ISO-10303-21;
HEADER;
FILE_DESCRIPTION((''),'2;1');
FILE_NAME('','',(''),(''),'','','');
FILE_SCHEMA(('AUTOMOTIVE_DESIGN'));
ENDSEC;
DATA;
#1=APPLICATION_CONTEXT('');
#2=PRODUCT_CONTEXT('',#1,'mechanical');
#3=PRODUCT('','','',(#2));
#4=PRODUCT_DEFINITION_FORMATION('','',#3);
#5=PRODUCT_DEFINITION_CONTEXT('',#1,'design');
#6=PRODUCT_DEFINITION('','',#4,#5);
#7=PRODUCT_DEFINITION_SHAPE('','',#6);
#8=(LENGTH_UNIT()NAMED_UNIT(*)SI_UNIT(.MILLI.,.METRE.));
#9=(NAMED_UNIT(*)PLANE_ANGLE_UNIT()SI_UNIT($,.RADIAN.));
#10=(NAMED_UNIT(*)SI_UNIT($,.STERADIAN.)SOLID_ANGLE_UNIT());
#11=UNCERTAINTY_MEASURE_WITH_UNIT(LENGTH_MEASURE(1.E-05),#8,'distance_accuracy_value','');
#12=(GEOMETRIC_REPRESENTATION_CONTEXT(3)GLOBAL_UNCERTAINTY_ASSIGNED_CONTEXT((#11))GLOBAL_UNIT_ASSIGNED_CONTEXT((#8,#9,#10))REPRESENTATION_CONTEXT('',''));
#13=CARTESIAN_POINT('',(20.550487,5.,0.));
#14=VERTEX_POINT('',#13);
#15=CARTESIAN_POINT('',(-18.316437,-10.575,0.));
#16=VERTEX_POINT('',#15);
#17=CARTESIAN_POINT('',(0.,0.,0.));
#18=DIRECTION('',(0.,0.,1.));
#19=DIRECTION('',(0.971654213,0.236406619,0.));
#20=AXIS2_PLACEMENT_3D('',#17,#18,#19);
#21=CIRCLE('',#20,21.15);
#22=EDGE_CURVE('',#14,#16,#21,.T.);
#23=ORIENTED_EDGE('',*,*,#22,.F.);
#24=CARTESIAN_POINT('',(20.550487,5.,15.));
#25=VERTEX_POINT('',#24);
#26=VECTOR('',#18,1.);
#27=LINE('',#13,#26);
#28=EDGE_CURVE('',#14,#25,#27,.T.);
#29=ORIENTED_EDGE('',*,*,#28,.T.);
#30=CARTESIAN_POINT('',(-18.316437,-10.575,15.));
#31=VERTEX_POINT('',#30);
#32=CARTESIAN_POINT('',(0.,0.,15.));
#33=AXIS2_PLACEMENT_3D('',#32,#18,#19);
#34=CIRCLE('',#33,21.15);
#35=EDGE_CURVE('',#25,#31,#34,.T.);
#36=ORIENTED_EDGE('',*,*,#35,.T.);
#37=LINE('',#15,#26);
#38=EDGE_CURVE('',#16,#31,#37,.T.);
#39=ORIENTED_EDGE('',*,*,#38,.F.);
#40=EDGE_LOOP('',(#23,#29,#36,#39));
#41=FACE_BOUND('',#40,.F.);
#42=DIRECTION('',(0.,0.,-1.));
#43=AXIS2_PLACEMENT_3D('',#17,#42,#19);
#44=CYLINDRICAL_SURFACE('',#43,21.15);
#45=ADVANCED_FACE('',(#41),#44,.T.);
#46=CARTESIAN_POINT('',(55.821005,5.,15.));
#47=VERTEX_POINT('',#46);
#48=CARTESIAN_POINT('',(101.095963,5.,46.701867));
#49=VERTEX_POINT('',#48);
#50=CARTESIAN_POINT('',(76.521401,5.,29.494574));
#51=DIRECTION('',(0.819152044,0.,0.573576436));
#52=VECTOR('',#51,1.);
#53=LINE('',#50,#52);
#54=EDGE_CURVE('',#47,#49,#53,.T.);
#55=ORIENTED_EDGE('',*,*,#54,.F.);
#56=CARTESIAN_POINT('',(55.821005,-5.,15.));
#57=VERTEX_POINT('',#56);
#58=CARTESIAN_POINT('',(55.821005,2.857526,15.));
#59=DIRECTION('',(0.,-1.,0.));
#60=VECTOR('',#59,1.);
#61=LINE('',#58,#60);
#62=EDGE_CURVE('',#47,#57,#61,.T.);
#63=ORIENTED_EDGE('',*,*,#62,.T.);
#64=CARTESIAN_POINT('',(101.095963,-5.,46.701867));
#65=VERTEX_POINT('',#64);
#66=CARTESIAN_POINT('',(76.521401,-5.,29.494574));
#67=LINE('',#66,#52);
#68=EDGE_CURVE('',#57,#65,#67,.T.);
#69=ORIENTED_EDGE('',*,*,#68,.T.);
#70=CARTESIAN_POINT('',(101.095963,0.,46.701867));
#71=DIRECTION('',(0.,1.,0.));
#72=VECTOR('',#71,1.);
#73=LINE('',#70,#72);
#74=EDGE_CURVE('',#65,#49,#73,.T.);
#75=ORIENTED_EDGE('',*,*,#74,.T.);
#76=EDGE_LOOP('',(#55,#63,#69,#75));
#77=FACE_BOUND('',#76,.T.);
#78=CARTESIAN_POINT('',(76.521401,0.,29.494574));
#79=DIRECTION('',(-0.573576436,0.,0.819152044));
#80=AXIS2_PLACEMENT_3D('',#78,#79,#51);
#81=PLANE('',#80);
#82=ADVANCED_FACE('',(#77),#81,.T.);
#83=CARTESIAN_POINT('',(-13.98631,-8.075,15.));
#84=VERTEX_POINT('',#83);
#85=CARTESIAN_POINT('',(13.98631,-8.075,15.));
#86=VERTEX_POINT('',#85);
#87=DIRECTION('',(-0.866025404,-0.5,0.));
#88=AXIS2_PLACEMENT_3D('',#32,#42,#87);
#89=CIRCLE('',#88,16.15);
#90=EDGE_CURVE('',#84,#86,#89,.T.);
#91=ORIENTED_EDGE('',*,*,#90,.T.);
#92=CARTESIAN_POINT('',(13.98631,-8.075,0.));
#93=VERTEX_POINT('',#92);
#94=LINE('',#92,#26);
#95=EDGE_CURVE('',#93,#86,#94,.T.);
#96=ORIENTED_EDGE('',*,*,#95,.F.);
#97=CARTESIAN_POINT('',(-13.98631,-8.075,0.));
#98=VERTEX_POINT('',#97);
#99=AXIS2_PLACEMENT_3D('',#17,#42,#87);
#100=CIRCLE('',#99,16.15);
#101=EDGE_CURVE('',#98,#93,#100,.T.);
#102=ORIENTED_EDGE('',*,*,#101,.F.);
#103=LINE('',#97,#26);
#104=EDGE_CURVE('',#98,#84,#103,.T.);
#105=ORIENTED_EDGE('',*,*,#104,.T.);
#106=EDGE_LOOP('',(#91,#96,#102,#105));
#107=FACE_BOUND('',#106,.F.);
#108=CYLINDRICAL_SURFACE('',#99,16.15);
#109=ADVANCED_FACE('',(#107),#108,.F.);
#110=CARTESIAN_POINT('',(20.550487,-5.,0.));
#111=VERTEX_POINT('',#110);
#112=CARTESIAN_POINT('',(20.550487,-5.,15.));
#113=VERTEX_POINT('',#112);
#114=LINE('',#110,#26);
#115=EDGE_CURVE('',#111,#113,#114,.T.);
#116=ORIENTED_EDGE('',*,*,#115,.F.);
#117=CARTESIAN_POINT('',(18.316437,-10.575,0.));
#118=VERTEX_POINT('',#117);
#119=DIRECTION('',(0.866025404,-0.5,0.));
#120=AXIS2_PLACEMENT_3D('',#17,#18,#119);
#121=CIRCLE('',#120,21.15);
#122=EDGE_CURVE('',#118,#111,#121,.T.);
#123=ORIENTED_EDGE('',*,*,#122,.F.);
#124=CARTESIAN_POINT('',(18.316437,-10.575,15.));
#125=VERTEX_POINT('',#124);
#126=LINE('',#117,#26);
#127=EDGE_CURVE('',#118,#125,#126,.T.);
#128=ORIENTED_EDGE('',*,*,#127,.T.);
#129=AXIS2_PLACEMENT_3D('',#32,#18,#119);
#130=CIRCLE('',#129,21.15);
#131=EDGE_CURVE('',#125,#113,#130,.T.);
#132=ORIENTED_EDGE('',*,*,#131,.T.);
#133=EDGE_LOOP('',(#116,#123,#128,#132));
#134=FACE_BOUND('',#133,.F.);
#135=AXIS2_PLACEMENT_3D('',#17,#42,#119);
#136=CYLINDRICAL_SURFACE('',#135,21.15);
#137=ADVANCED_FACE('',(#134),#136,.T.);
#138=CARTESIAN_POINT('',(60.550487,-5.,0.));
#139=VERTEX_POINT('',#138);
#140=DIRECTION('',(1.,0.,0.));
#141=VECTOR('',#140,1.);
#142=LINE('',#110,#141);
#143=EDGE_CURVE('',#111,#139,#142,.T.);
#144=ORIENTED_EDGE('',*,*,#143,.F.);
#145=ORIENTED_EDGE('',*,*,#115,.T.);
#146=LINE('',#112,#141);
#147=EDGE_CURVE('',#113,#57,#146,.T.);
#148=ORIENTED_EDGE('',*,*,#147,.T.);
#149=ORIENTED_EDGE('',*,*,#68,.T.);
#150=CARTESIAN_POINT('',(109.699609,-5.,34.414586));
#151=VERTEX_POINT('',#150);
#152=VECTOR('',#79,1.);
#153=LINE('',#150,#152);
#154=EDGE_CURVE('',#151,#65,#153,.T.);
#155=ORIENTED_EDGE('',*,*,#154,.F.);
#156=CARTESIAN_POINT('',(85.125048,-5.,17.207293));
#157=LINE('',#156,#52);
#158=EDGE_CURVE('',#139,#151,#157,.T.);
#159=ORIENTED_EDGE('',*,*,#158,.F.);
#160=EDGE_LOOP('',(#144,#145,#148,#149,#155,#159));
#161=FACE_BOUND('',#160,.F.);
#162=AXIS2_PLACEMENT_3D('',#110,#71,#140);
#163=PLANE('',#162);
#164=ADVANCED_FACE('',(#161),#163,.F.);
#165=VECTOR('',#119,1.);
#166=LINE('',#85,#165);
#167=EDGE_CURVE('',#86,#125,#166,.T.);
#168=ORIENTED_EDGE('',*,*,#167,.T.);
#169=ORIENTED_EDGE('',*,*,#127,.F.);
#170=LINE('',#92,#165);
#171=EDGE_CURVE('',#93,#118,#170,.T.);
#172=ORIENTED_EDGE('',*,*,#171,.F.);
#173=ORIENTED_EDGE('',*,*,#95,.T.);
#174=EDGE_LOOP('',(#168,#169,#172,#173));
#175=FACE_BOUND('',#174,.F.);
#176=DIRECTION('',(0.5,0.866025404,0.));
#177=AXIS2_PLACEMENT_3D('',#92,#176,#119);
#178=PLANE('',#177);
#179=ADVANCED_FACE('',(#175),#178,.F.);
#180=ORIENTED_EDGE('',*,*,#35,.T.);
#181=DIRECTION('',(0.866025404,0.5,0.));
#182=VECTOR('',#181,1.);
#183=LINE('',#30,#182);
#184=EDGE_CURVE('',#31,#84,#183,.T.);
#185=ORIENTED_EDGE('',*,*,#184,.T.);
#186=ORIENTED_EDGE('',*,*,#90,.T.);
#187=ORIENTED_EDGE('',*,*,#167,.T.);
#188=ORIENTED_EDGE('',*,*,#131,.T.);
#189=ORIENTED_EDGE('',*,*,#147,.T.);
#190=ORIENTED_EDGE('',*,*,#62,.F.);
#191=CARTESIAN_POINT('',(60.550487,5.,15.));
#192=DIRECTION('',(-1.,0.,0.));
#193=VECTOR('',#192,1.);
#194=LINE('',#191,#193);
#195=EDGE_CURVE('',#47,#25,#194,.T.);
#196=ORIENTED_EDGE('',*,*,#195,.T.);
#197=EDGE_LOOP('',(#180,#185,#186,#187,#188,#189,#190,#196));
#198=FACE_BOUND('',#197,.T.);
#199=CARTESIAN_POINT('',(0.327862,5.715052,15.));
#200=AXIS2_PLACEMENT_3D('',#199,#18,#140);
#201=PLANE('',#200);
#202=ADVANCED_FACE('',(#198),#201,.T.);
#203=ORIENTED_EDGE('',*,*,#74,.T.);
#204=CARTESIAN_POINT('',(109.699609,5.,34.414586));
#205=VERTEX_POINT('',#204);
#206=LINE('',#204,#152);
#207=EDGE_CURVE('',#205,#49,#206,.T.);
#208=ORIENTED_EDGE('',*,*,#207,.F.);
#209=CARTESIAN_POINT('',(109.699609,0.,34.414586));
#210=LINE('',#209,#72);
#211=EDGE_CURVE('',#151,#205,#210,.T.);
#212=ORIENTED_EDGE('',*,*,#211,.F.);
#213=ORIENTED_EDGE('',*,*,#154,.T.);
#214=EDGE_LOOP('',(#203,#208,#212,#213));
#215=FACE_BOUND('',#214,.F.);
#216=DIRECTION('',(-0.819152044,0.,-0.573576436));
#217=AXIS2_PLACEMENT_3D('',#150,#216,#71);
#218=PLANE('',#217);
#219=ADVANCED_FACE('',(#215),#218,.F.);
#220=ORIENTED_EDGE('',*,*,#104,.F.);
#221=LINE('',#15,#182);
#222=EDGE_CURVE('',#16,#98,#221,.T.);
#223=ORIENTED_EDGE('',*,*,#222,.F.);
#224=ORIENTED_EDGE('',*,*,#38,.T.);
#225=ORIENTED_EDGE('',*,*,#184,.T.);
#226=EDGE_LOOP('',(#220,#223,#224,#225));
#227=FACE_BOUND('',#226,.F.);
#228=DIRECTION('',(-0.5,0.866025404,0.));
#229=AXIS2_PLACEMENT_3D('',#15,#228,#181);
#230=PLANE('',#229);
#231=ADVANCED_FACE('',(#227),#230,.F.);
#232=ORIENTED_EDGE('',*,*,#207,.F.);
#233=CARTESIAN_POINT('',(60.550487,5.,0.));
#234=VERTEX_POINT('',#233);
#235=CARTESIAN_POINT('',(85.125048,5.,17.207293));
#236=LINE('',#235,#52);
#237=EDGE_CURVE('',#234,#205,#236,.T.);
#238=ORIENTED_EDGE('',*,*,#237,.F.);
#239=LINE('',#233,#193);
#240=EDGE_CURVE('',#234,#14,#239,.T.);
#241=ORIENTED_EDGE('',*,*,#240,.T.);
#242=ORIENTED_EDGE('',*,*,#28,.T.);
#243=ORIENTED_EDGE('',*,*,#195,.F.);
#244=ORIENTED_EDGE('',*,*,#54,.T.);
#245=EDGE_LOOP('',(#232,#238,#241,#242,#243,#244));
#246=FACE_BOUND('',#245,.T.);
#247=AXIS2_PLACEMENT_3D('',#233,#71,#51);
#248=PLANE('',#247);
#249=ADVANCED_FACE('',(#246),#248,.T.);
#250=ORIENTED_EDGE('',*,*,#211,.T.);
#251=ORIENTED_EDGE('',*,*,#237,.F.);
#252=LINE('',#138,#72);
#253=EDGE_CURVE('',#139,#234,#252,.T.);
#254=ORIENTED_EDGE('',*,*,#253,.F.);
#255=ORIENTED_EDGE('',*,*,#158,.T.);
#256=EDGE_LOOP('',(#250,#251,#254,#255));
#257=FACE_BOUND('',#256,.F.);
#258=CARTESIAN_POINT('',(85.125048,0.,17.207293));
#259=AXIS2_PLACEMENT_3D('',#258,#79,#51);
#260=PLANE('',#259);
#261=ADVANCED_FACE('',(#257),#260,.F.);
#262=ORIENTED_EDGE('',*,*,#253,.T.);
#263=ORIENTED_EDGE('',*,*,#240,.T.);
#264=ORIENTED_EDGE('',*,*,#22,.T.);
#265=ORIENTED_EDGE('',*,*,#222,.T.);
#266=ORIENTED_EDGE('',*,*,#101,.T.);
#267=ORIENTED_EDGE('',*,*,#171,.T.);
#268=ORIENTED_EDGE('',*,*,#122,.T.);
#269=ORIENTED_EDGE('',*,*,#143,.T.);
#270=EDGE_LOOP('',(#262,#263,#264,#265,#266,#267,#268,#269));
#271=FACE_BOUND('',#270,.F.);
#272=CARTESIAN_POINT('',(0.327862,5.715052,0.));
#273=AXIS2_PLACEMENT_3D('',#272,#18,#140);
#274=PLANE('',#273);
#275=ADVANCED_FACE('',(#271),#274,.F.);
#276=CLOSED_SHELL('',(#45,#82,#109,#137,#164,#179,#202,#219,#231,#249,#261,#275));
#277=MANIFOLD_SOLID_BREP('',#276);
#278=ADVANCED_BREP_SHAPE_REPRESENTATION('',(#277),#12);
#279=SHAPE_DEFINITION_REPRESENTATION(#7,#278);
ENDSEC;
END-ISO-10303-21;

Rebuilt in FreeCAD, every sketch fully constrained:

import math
import FreeCAD as App
import Part
import Sketcher
Q = App.Units.Quantity

doc = App.newDocument("Part")
params = doc.addObject("Spreadsheet::Sheet", "Params")
for row, (alias, value) in enumerate([
    ("sketch1_width", "40 mm"),
    ("sketch1_height", "10 mm"),
    ("sketch1_radius", "16.15 mm"),
    ("sketch1_radius2", "21.15 mm"),
    ("pad1_length", "15 mm"),
    ("sketch2_width", "60 mm"),
    ("sketch2_height", "10 mm"),
    ("pad2_length", "15 mm"),
], start=1):
    params.set(f"A{row}", alias)
    params.set(f"B{row}", "=" + value)
    params.setAlias(f"B{row}", alias)

body = doc.addObject("PartDesign::Body", "Body")

# Sketch on XY plane
sketch1 = doc.addObject("Sketcher::SketchObject", "Sketch")
body.addObject(sketch1)
sketch1.AttachmentSupport = (doc.XY_Plane, [""])
sketch1.MapMode = "FlatFace"
sketch1.addGeometry([
    Part.ArcOfCircle(Part.Circle(App.Vector(0, 0, 0), App.Vector(0, 0, 1), 16.15), math.radians(-30), math.radians(210)),  # 0
    Part.LineSegment(App.Vector(13.98631, -8.075, 0), App.Vector(18.316437, -10.575, 0)),  # 1
    Part.ArcOfCircle(Part.Circle(App.Vector(0, 0, 0), App.Vector(0, 0, 1), 21.15), math.radians(-30), math.radians(-13.674553)),  # 2
    Part.LineSegment(App.Vector(20.550487, -5, 0), App.Vector(60.550487, -5, 0)),  # 3
    Part.LineSegment(App.Vector(60.550487, -5, 0), App.Vector(60.550487, 5, 0)),  # 4
    Part.LineSegment(App.Vector(60.550487, 5, 0), App.Vector(20.550487, 5, 0)),  # 5
    Part.ArcOfCircle(Part.Circle(App.Vector(0, 0, 0), App.Vector(0, 0, 1), 21.15), math.radians(13.674553), math.radians(210)),  # 6
    Part.LineSegment(App.Vector(-18.316437, -10.575, 0), App.Vector(-13.98631, -8.075, 0)),  # 7
], False)
sketch1.addConstraint([
    Sketcher.Constraint("Coincident", 0, 1, 1, 1),
    Sketcher.Constraint("Coincident", 1, 2, 2, 1),
    Sketcher.Constraint("Coincident", 2, 2, 3, 1),
    Sketcher.Constraint("Coincident", 3, 2, 4, 1),
    Sketcher.Constraint("Coincident", 4, 2, 5, 1),
    Sketcher.Constraint("Coincident", 5, 2, 6, 1),
    Sketcher.Constraint("Coincident", 6, 2, 7, 1),
    Sketcher.Constraint("Coincident", 7, 2, 0, 2),
    Sketcher.Constraint("Horizontal", 3),
    Sketcher.Constraint("Vertical", 4),
    Sketcher.Constraint("Horizontal", 5),
    Sketcher.Constraint("Coincident", 0, 3, -1, 1),
    Sketcher.Constraint("Coincident", 2, 3, -1, 1),
    Sketcher.Constraint("Coincident", 6, 3, -1, 1),
    Sketcher.Constraint("Equal", 2, 6),
    Sketcher.Constraint("Horizontal", 1, 2, 6, 2),
    Sketcher.Constraint("Horizontal", 0, 1, 7, 2),
    Sketcher.Constraint("Vertical", 2, 2, 5, 2),
    Sketcher.Constraint("DistanceX", 3, 1, 3, 2, 40.0),
    Sketcher.Constraint("DistanceY", 4, 1, 4, 2, 10.0),
    Sketcher.Constraint("Angle", 1, Q("-30 deg")),
    Sketcher.Constraint("Radius", 0, 16.15),
    Sketcher.Constraint("Radius", 2, 21.15),
    Sketcher.Constraint("DistanceY", 0, 1, -1, 1, 8.075),
])
sketch1.setExpression("Constraints[18]", "Params.sketch1_width")
sketch1.setExpression("Constraints[19]", "Params.sketch1_height")
sketch1.setExpression("Constraints[21]", "Params.sketch1_radius")
sketch1.setExpression("Constraints[22]", "Params.sketch1_radius2")
pad1 = doc.addObject("PartDesign::Pad", "Pad")
body.addObject(pad1)
pad1.Profile = sketch1
pad1.setExpression("Length", "Params.pad1_length")

# Sketch on an angled plane
sketch2 = doc.addObject("Sketcher::SketchObject", "Sketch001")
body.addObject(sketch2)
sketch2.Placement = App.Placement(App.Vector(19.9205, 0, -28.449423), App.Rotation(App.Vector(0.819152044, 0, 0.573576436), App.Vector(0, 0.999999999, 0), App.Vector(-0.573576436, 0, 0.819152044), "ZXY"))
sketch2.addGeometry([
    Part.LineSegment(App.Vector(49.600055, 5, 0), App.Vector(49.600055, -5, 0)),
    Part.LineSegment(App.Vector(49.600055, -5, 0), App.Vector(109.600055, -5, 0)),
    Part.LineSegment(App.Vector(109.600055, -5, 0), App.Vector(109.600055, 5, 0)),
    Part.LineSegment(App.Vector(109.600055, 5, 0), App.Vector(49.600055, 5, 0)),
], False)
sketch2.addConstraint([
    Sketcher.Constraint("Coincident", 0, 2, 1, 1),
    Sketcher.Constraint("Coincident", 1, 2, 2, 1),
    Sketcher.Constraint("Coincident", 2, 2, 3, 1),
    Sketcher.Constraint("Coincident", 3, 2, 0, 1),
    Sketcher.Constraint("Vertical", 0),
    Sketcher.Constraint("Horizontal", 1),
    Sketcher.Constraint("Vertical", 2),
    Sketcher.Constraint("Horizontal", 3),
    Sketcher.Constraint("DistanceX", 1, 1, 1, 2, 60.0),
    Sketcher.Constraint("DistanceY", 0, 2, 0, 1, 10.0),
    Sketcher.Constraint("DistanceY", 0, 2, -1, 1, 5.0),
    Sketcher.Constraint("DistanceX", -1, 1, 0, 2, 49.600055),
])
sketch2.setExpression("Constraints[8]", "Params.sketch2_width")
sketch2.setExpression("Constraints[9]", "Params.sketch2_height")
pad2 = doc.addObject("PartDesign::Pad", "Pad001")
body.addObject(pad2)
pad2.Profile = sketch2
pad2.setExpression("Length", "Params.pad2_length")

doc.recompute()
